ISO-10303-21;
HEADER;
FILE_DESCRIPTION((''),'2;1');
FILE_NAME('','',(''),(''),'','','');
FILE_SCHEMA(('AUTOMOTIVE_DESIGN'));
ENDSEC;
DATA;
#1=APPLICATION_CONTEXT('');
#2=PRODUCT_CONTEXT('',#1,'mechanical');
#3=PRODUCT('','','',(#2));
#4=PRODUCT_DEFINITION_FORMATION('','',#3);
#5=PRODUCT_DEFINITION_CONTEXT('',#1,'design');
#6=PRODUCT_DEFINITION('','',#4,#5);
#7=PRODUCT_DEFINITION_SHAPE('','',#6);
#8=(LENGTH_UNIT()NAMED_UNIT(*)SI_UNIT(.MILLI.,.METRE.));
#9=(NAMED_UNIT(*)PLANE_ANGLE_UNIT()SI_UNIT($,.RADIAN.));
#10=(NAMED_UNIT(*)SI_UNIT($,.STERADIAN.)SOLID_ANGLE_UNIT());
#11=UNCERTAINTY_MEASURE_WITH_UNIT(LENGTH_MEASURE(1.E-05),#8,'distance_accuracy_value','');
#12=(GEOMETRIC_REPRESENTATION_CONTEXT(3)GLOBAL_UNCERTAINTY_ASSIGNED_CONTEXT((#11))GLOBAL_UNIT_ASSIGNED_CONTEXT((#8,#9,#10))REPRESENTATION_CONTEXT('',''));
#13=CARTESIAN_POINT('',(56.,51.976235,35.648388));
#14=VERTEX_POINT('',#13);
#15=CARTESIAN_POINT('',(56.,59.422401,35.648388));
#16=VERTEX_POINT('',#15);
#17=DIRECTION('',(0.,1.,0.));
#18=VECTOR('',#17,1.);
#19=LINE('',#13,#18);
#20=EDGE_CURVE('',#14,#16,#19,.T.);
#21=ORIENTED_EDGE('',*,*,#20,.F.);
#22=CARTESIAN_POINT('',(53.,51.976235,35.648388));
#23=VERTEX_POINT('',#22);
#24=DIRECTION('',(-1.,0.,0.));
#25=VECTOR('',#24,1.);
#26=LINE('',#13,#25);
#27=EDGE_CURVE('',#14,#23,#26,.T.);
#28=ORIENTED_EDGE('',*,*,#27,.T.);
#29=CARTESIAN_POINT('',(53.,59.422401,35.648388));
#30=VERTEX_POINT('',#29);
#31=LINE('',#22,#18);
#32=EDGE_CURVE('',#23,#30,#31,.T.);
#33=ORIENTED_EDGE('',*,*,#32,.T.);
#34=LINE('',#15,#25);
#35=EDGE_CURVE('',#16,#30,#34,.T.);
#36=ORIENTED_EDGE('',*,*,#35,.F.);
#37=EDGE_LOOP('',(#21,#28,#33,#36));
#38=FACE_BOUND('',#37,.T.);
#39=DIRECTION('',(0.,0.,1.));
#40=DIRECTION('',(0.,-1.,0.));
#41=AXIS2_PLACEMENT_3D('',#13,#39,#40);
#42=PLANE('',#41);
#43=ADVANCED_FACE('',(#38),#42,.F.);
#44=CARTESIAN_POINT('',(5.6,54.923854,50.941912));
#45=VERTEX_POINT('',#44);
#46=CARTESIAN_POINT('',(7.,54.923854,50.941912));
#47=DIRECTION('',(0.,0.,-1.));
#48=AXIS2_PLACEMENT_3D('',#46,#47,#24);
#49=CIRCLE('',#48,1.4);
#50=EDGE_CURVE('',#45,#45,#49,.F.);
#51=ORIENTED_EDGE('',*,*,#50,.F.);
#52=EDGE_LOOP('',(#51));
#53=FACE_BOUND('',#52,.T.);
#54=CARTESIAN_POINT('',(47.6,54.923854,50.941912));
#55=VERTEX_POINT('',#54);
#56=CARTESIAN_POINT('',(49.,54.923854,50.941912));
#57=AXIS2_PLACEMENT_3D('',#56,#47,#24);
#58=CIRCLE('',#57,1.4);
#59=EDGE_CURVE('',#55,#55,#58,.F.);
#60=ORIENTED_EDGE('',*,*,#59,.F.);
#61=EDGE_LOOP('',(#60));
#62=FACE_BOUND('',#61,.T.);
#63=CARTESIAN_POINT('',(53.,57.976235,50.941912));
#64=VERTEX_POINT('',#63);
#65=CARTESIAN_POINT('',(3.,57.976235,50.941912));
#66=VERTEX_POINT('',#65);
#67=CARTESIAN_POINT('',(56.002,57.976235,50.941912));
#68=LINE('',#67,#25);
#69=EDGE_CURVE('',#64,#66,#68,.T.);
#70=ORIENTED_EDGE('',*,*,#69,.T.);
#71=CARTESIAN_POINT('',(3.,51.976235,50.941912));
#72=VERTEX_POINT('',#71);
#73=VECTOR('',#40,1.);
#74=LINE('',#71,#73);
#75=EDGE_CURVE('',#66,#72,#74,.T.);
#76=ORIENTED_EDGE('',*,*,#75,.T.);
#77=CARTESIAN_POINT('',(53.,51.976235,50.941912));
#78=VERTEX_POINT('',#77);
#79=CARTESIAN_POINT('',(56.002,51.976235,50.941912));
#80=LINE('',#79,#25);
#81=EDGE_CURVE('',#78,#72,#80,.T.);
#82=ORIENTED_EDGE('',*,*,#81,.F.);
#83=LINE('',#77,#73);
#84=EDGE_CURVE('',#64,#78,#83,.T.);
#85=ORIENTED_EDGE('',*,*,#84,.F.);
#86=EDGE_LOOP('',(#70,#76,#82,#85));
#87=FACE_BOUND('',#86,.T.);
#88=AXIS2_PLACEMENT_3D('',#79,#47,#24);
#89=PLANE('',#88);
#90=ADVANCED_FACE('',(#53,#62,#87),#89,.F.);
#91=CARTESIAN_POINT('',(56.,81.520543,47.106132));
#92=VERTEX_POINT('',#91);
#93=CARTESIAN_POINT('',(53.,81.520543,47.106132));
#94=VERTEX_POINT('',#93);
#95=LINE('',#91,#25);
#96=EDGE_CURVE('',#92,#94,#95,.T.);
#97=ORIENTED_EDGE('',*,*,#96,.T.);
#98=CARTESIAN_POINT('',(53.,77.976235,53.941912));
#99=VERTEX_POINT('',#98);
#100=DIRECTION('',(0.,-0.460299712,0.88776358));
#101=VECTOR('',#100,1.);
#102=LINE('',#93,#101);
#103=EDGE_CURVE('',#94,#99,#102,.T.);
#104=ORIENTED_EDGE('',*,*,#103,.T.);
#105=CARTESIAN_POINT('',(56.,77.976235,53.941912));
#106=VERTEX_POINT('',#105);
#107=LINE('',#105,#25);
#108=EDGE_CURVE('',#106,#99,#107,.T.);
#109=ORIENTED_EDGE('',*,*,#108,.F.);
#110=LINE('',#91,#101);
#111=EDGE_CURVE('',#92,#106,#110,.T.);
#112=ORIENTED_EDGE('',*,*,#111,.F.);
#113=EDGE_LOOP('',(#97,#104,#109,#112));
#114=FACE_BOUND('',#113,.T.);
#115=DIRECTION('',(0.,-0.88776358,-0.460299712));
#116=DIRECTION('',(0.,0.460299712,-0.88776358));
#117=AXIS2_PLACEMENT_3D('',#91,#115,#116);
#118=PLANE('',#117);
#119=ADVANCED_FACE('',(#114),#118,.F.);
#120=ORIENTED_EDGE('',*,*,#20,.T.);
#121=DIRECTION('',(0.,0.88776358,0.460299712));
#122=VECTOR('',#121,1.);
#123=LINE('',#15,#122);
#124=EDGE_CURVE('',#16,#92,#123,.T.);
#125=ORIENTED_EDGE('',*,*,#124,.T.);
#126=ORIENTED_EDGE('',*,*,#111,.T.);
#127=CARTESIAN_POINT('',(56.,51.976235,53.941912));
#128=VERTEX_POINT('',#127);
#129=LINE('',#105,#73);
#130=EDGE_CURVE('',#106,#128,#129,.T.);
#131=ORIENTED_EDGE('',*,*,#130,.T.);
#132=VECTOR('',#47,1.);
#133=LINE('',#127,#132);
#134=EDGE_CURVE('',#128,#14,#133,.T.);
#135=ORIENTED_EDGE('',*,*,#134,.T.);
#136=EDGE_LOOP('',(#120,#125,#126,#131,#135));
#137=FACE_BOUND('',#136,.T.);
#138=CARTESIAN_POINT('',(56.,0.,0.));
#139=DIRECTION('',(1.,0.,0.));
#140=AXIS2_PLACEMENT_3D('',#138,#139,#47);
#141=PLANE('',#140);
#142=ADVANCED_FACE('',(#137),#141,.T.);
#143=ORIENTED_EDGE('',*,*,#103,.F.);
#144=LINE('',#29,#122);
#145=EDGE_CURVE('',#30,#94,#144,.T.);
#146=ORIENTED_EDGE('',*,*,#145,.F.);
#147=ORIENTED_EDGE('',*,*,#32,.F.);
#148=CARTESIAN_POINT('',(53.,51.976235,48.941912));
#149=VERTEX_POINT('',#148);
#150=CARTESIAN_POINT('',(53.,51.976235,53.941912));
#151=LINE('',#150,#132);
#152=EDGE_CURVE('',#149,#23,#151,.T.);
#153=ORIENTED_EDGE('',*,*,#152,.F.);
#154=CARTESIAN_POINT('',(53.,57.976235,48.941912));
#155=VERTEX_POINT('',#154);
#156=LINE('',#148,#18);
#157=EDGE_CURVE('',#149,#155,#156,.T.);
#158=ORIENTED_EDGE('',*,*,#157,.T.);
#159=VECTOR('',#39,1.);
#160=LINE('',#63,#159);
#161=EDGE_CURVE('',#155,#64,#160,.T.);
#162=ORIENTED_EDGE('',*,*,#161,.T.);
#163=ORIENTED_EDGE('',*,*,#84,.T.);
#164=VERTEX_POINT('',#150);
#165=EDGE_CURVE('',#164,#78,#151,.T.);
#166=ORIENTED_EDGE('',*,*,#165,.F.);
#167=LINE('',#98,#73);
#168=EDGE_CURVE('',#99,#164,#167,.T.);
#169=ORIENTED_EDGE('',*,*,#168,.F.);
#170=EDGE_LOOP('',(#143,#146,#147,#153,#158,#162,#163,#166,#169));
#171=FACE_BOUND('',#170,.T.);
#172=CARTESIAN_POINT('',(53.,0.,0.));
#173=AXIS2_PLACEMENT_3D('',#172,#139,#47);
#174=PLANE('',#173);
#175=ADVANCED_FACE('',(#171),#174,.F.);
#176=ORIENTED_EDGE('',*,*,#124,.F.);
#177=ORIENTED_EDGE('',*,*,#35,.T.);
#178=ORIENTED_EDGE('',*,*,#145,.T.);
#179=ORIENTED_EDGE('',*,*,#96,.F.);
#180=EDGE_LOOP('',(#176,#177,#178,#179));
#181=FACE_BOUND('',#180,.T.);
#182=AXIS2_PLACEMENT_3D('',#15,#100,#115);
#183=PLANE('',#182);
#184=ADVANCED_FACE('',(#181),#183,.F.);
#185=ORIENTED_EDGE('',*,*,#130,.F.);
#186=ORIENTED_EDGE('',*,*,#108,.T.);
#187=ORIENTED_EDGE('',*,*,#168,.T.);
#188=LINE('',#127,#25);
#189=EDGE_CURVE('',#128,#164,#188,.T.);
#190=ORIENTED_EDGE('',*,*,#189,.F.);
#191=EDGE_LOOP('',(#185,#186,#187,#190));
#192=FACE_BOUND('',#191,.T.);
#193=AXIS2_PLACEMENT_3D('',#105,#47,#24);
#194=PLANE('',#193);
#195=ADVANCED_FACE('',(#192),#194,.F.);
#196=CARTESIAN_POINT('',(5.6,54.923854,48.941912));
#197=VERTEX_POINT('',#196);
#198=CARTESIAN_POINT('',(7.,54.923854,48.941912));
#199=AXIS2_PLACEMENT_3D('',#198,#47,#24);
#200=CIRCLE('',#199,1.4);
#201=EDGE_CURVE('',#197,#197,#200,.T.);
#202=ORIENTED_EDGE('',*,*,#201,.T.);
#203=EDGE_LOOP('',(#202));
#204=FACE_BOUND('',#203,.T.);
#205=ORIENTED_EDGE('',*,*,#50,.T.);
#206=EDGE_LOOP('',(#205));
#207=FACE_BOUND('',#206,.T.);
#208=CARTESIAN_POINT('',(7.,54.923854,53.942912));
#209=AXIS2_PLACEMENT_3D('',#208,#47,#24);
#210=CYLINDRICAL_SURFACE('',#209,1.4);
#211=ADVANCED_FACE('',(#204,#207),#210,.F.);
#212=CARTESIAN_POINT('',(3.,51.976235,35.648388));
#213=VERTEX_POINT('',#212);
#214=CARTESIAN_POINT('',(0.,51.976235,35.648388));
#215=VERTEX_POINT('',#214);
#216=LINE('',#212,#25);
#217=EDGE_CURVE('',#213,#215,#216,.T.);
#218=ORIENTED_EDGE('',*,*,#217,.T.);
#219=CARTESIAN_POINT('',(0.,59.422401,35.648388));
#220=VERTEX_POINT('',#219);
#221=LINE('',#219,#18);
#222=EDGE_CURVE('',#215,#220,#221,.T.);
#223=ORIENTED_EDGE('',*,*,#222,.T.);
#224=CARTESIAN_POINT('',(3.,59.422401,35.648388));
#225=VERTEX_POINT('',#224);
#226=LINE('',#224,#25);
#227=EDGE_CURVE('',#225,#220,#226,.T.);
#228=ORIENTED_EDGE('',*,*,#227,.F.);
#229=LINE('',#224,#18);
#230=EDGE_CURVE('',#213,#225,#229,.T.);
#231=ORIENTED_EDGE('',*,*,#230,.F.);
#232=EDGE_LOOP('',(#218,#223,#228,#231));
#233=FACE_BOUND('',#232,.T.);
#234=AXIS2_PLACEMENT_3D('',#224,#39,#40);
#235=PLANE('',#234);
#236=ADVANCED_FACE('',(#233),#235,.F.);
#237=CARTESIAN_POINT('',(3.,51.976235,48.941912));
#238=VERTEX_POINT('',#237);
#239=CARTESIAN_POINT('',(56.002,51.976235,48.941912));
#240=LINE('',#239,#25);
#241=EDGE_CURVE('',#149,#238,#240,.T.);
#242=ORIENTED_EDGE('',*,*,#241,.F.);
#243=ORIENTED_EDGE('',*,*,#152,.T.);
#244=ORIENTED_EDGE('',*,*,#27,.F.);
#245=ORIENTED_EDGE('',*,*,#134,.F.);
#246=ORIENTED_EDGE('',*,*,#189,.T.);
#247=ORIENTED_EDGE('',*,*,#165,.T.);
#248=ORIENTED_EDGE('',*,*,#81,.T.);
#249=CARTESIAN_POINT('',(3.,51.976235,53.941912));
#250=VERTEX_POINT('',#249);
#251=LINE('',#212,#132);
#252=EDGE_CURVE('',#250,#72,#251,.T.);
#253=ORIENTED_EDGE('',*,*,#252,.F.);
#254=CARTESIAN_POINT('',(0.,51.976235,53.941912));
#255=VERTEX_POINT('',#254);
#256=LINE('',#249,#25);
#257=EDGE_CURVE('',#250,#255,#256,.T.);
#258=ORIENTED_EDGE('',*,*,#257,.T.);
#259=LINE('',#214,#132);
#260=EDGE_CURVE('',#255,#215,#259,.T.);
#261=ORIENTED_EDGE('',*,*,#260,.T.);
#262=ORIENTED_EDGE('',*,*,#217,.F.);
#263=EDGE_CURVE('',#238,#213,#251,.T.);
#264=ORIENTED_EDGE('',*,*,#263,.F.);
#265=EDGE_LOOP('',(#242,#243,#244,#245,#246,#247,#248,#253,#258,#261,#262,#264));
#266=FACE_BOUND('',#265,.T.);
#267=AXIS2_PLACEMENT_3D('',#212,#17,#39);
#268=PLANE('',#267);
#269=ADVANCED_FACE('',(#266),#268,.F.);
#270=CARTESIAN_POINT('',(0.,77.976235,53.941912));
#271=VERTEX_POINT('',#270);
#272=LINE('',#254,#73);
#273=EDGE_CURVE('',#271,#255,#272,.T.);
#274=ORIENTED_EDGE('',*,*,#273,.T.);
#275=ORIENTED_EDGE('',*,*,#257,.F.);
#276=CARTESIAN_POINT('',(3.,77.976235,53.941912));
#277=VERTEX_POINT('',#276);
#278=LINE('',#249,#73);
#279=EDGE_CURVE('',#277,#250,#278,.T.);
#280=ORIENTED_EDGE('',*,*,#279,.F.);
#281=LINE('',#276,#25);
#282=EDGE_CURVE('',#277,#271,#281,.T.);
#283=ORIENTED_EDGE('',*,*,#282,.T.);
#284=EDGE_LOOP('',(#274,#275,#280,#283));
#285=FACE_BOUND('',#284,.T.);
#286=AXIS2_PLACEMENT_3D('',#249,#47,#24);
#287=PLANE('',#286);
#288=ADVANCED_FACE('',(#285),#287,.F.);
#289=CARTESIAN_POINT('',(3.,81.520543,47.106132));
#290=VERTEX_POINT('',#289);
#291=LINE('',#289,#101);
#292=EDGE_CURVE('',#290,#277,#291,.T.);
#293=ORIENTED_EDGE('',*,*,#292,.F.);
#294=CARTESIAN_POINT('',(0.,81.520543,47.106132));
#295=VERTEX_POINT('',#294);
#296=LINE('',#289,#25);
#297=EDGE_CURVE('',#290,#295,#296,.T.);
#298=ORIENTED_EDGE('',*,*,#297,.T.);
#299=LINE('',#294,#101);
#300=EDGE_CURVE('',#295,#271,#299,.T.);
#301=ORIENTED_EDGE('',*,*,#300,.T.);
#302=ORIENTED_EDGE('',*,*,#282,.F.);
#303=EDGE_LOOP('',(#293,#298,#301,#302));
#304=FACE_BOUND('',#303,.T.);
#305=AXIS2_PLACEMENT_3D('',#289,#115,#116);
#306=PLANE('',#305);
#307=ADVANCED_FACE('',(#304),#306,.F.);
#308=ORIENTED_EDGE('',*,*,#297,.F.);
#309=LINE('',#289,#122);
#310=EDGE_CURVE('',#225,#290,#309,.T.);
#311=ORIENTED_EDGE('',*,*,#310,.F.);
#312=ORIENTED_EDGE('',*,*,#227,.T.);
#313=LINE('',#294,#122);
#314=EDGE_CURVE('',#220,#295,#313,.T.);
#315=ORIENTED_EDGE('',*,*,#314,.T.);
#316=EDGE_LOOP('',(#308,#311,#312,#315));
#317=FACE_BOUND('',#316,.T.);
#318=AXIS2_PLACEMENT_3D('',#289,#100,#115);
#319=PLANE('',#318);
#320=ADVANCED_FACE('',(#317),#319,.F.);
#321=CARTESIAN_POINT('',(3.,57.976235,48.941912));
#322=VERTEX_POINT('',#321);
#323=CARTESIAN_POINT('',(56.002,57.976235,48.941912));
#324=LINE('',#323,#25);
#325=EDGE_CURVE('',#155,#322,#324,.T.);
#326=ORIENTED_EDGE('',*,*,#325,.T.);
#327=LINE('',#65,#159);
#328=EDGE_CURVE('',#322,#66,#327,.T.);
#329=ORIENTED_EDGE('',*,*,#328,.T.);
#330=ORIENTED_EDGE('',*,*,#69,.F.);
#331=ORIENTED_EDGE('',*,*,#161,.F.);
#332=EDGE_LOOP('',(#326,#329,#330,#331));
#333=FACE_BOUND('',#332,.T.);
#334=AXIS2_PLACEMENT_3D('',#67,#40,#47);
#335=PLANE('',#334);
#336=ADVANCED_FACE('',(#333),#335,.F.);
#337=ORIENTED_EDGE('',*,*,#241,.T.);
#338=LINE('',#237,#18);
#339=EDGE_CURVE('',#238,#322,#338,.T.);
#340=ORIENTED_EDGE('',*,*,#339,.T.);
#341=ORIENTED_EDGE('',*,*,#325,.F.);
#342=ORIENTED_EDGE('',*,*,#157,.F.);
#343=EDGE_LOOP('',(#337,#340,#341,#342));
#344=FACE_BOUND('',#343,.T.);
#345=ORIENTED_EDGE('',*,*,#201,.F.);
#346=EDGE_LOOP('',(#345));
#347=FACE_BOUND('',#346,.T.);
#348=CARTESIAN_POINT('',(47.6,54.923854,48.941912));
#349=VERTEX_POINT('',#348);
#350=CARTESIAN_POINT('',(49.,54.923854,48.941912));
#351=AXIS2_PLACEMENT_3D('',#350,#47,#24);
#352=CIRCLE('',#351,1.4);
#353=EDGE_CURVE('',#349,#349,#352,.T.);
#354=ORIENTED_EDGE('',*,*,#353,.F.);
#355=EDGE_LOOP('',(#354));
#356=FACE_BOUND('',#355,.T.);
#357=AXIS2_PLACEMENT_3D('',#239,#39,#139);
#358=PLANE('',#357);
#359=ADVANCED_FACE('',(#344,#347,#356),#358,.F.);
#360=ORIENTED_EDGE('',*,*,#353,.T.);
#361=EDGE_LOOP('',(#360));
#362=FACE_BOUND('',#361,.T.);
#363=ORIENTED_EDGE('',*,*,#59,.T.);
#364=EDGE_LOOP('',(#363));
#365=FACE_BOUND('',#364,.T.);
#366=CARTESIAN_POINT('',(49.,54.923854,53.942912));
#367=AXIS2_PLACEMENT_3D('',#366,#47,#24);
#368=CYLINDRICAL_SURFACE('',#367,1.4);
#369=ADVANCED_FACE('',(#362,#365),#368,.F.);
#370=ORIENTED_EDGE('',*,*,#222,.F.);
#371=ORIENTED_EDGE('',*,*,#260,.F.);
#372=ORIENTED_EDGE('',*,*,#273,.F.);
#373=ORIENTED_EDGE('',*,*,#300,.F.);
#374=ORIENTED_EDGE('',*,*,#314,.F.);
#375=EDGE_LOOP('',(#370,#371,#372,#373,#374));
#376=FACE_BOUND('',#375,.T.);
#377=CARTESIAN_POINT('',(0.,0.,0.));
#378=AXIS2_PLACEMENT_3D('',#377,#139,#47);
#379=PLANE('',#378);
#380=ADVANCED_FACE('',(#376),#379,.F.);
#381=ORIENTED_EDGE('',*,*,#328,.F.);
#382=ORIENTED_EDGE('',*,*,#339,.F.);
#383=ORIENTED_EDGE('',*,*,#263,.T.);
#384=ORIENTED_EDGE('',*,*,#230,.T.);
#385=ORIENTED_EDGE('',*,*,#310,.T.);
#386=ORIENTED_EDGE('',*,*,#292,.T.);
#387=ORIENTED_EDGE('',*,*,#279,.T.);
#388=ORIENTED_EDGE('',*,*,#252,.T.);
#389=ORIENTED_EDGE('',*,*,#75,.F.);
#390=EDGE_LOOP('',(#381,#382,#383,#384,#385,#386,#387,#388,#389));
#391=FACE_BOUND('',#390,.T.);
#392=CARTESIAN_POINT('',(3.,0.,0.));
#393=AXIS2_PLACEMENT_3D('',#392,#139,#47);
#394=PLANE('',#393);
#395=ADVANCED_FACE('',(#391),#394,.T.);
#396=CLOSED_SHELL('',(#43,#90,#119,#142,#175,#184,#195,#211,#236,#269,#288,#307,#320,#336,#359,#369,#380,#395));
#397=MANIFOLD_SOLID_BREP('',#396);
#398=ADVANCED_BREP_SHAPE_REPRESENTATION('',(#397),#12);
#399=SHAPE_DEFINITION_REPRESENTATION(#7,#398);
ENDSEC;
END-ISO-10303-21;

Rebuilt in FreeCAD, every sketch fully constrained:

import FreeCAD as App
import Part
import Sketcher

V = App.Vector


def add_polygon(sketch, points):
    """Adds a closed chain of lines whose ends are joined by coincident constraints."""
    first, n = sketch.GeometryCount, len(points)
    for a, b in zip(points, points[1:] + points[:1]):
        sketch.addGeometry(Part.LineSegment(App.Vector(*a, 0), App.Vector(*b, 0)), False)
    for i in range(n):
        sketch.addConstraint(Sketcher.Constraint("Coincident", first + i, 2, first + (i + 1) % n, 1))

doc = App.newDocument("Part")
params = doc.addObject("Spreadsheet::Sheet", "Params")
for row, (alias, value) in enumerate([
    ("sketch1_width", "26 mm"),
    ("sketch1_length", "7.7 mm"),
    ("pad1_length", "3 mm"),
    ("sketch2_width", "26 mm"),
    ("sketch2_length", "7.7 mm"),
    ("pad2_length", "3 mm"),
    ("sketch3_width", "6 mm"),
    ("sketch3_height", "2 mm"),
    ("sketch4_diameter", "2.8 mm"),
    ("sketch5_diameter", "2.8 mm"),
], start=1):
    params.set(f"A{row}", alias)
    params.set(f"B{row}", "=" + value)
    params.setAlias(f"B{row}", alias)

body = doc.addObject("PartDesign::Body", "Body")

sketch1 = body.newObject("Sketcher::SketchObject", "Sketch")
sketch1.AttachmentSupport = (doc.getObject("YZ_Plane"), [""])
sketch1.MapMode = "FlatFace"
add_polygon(sketch1, [(59, 36), (82, 47), (78, 54), (52, 54), (52, 36)])
sketch1.addConstraint(Sketcher.Constraint("Horizontal", 2))
sketch1.addConstraint(Sketcher.Constraint("Vertical", 3))
sketch1.addConstraint(Sketcher.Constraint("Horizontal", 4))
sketch1.addConstraint(Sketcher.Constraint("Perpendicular", 0, 1))
sketch1.addConstraint(Sketcher.Constraint("DistanceX", 2, 2, 2, 1, 26.0))
sketch1.addConstraint(Sketcher.Constraint("Distance", 1, 7.7))
sketch1.addConstraint(Sketcher.Constraint("DistanceX", -1, 1, 4, 2, 59.422401))
sketch1.addConstraint(Sketcher.Constraint("Distance", 0, 24.891922))
sketch1.addConstraint(Sketcher.Constraint("DistanceX", 4, 1, 4, 2, 7.446166))
sketch1.addConstraint(Sketcher.Constraint("DistanceY", -1, 1, 1, 2, 53.941912))
sketch1.setExpression("Constraints[9]", "Params.sketch1_width")
sketch1.setExpression("Constraints[10]", "Params.sketch1_length")
pad1 = body.newObject("PartDesign::Pad", "Pad")
pad1.Profile = sketch1
pad1.setExpression("Length", "Params.pad1_length")
body2 = doc.addObject("PartDesign::Body", "Body001")
body2.AllowCompound = True

sketch2 = body2.newObject("Sketcher::SketchObject", "Sketch001")
sketch2.AttachmentSupport = (doc.getObject("YZ_Plane001"), [""])
sketch2.MapMode = "FlatFace"
sketch2.AttachmentOffset = App.Placement(V(0, 0, 53), App.Rotation())
add_polygon(sketch2, [(82, 47), (78, 54), (52, 54), (52, 36), (59, 36)])
sketch2.addConstraint(Sketcher.Constraint("Horizontal", 1))
sketch2.addConstraint(Sketcher.Constraint("Vertical", 2))
sketch2.addConstraint(Sketcher.Constraint("Horizontal", 3))
sketch2.addConstraint(Sketcher.Constraint("Perpendicular", 0, 4))
sketch2.addConstraint(Sketcher.Constraint("DistanceX", 1, 2, 1, 1, 26.0))
sketch2.addConstraint(Sketcher.Constraint("Distance", 0, 7.7))
sketch2.addConstraint(Sketcher.Constraint("DistanceX", -1, 1, 3, 2, 59.422401))
sketch2.addConstraint(Sketcher.Constraint("Distance", 4, 24.891922))
sketch2.addConstraint(Sketcher.Constraint("DistanceX", 3, 1, 3, 2, 7.446166))
sketch2.addConstraint(Sketcher.Constraint("DistanceY", -1, 1, 0, 2, 53.941912))
sketch2.setExpression("Constraints[9]", "Params.sketch2_width")
sketch2.setExpression("Constraints[10]", "Params.sketch2_length")
pad2 = body2.newObject("PartDesign::Pad", "Pad001")
pad2.Profile = sketch2
pad2.setExpression("Length", "Params.pad2_length")
doc.recompute()

boolean = body2.newObject("PartDesign::Boolean", "Boolean")
boolean.Type = "Fuse"
boolean.addObjects([body])

sketch3 = body2.newObject("Sketcher::SketchObject", "Sketch002")
sketch3.AttachmentSupport = (doc.getObject("YZ_Plane001"), [""])
sketch3.MapMode = "FlatFace"
sketch3.AttachmentOffset = App.Placement(V(0, 0, 3), App.Rotation())
add_polygon(sketch3, [(58, 50.9), (52, 50.9), (52, 48.9), (58, 48.9)])
sketch3.addConstraint(Sketcher.Constraint("Horizontal", 0))
sketch3.addConstraint(Sketcher.Constraint("Vertical", 1))
sketch3.addConstraint(Sketcher.Constraint("Horizontal", 2))
sketch3.addConstraint(Sketcher.Constraint("Vertical", 3))
sketch3.addConstraint(Sketcher.Constraint("DistanceX", 0, 2, 0, 1, 6.0))
sketch3.addConstraint(Sketcher.Constraint("DistanceY", 1, 2, 1, 1, 2.0))
sketch3.addConstraint(Sketcher.Constraint("DistanceY", -1, 1, 0, 2, 50.941912))
sketch3.addConstraint(Sketcher.Constraint("DistanceX", -1, 1, 0, 2, 51.976235))
sketch3.setExpression("Constraints[8]", "Params.sketch3_width")
sketch3.setExpression("Constraints[9]", "Params.sketch3_height")
pad3 = body2.newObject("PartDesign::Pad", "Pad002")
pad3.Profile = sketch3
pad3.Type = "UpToFirst"

sketch4 = body2.newObject("Sketcher::SketchObject", "Sketch003")
sketch4.AttachmentSupport = (doc.getObject("XY_Plane001"), [""])
sketch4.MapMode = "FlatFace"
sketch4.AttachmentOffset = App.Placement(V(0, 0, 48.941912), App.Rotation())
sketch4.addGeometry(Part.Circle(V(49, 54.9, 0), V(0, 0, 1), 1.4), False)
sketch4.addConstraint(Sketcher.Constraint("Diameter", 0, 2.8))
sketch4.addConstraint(Sketcher.Constraint("DistanceX", -1, 1, 0, 3, 49.0))
sketch4.addConstraint(Sketcher.Constraint("DistanceY", -1, 1, 0, 3, 54.923854))
sketch4.setExpression("Constraints[0]", "Params.sketch4_diameter")
pocket1 = body2.newObject("PartDesign::Pocket", "Pocket")
pocket1.Profile = sketch4
pocket1.Type = "UpToFirst"
pocket1.Reversed = True

sketch5 = body2.newObject("Sketcher::SketchObject", "Sketch004")
sketch5.AttachmentSupport = (doc.getObject("XY_Plane001"), [""])
sketch5.MapMode = "FlatFace"
sketch5.AttachmentOffset = App.Placement(V(0, 0, 48.941912), App.Rotation())
sketch5.addGeometry(Part.Circle(V(7, 54.9, 0), V(0, 0, 1), 1.4), False)
sketch5.addConstraint(Sketcher.Constraint("Diameter", 0, 2.8))
sketch5.addConstraint(Sketcher.Constraint("DistanceX", -1, 1, 0, 3, 7.0))
sketch5.addConstraint(Sketcher.Constraint("DistanceY", -1, 1, 0, 3, 54.923854))
sketch5.setExpression("Constraints[0]", "Params.sketch5_diameter")
pocket2 = body2.newObject("PartDesign::Pocket", "Pocket001")
pocket2.Profile = sketch5
pocket2.Type = "UpToFirst"
pocket2.Reversed = True

doc.recompute()
